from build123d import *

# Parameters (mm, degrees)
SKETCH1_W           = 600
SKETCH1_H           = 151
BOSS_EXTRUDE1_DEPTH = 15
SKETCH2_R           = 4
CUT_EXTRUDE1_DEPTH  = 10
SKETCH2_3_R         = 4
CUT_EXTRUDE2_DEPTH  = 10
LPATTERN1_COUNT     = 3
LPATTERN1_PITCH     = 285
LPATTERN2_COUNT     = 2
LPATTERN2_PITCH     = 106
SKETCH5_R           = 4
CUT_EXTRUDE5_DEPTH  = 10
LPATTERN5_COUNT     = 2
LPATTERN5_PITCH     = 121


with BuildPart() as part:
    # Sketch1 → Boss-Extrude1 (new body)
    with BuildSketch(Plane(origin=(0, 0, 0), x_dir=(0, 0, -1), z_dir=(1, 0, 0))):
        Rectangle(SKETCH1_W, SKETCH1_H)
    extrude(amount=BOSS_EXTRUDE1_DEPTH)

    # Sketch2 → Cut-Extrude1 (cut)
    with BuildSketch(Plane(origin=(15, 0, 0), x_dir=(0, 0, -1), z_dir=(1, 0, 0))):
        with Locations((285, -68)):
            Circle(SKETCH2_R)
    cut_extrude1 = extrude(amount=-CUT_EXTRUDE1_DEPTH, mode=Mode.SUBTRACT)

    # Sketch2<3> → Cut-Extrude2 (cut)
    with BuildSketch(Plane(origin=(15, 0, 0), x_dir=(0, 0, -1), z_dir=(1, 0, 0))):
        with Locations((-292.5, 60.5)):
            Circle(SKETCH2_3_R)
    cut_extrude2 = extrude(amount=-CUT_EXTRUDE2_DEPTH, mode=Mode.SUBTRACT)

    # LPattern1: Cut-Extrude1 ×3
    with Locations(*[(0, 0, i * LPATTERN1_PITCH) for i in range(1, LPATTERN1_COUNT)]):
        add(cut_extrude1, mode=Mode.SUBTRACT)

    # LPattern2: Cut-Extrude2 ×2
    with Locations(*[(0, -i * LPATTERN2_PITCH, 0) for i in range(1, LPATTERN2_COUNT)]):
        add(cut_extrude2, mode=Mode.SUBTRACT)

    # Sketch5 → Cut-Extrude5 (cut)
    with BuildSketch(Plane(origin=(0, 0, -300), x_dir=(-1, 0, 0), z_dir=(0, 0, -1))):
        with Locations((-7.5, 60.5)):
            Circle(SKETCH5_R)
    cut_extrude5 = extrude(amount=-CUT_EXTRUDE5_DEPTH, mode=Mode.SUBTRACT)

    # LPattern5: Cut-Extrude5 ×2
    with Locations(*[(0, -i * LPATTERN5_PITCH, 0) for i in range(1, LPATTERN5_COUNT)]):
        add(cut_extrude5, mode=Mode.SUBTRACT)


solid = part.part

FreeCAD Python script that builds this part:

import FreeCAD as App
import Part
import Sketcher
Q = App.Units.Quantity

doc = App.newDocument("Part")
params = doc.addObject("Spreadsheet::Sheet", "Params")
for row, (alias, value) in enumerate([
    ("sketch1_width", "151 mm"),
    ("sketch1_height", "600 mm"),
    ("pad1_length", "15 mm"),
    ("sketch2_diameter", "8 mm"),
    ("pocket1_length", "10 mm"),
    ("sketch3_diameter", "8 mm"),
    ("pocket2_length", "10 mm"),
    ("linearpattern_pitch", "285 mm"),
    ("linearpattern2_pitch", "106 mm"),
    ("sketch4_diameter", "8 mm"),
    ("pocket3_length", "10 mm"),
    ("linearpattern3_pitch", "121 mm"),
], start=1):
    params.set(f"A{row}", alias)
    params.set(f"B{row}", "=" + value)
    params.setAlias(f"B{row}", alias)

body = doc.addObject("PartDesign::Body", "Body")

sketch1 = doc.addObject("Sketcher::SketchObject", "Sketch")
body.addObject(sketch1)
sketch1.AttachmentSupport = (doc.YZ_Plane, [""])
sketch1.MapMode = "FlatFace"
sketch1.addGeometry(Part.LineSegment(App.Vector(76, 300, 0), App.Vector(-76, 300, 0)), False)
sketch1.addGeometry(Part.LineSegment(App.Vector(-76, 300, 0), App.Vector(-76, -300, 0)), False)
sketch1.addGeometry(Part.LineSegment(App.Vector(-76, -300, 0), App.Vector(76, -300, 0)), False)
sketch1.addGeometry(Part.LineSegment(App.Vector(76, -300, 0), App.Vector(76, 300, 0)), False)
sketch1.addConstraint(Sketcher.Constraint("Coincident", 0, 2, 1, 1))
sketch1.addConstraint(Sketcher.Constraint("Coincident", 1, 2, 2, 1))
sketch1.addConstraint(Sketcher.Constraint("Coincident", 2, 2, 3, 1))
sketch1.addConstraint(Sketcher.Constraint("Coincident", 3, 2, 0, 1))
sketch1.addConstraint(Sketcher.Constraint("Horizontal", 0))
sketch1.addConstraint(Sketcher.Constraint("Vertical", 1))
sketch1.addConstraint(Sketcher.Constraint("Horizontal", 2))
sketch1.addConstraint(Sketcher.Constraint("Vertical", 3))
sketch1.addConstraint(Sketcher.Constraint("Symmetric", 0, 2, 2, 2, -1, 1))
sketch1.addConstraint(Sketcher.Constraint("DistanceX", 0, 2, 0, 1, Q("151 mm")))
sketch1.addConstraint(Sketcher.Constraint("DistanceY", 1, 2, 1, 1, Q("600 mm")))
sketch1.setExpression("Constraints[9]", "Params.sketch1_width")
sketch1.setExpression("Constraints[10]", "Params.sketch1_height")
pad1 = doc.addObject("PartDesign::Pad", "Pad")
body.addObject(pad1)
pad1.Profile = sketch1
pad1.setExpression("Length", "Params.pad1_length")

sketch2 = doc.addObject("Sketcher::SketchObject", "Sketch001")
body.addObject(sketch2)
sketch2.AttachmentSupport = (doc.YZ_Plane, [""])
sketch2.MapMode = "FlatFace"
sketch2.AttachmentOffset = App.Placement(App.Vector(0, 0, 15), App.Rotation())
sketch2.addGeometry(Part.Circle(App.Vector(-68, -285, 0), App.Vector(0, 0, 1), 4), False)
sketch2.addConstraint(Sketcher.Constraint("Diameter", 0, Q("8 mm")))
sketch2.addConstraint(Sketcher.Constraint("DistanceX", 0, 3, -1, 1, Q("68 mm")))
sketch2.addConstraint(Sketcher.Constraint("DistanceY", 0, 3, -1, 1, Q("285 mm")))
sketch2.setExpression("Constraints[0]", "Params.sketch2_diameter")
pocket1 = doc.addObject("PartDesign::Pocket", "Pocket")
body.addObject(pocket1)
pocket1.Profile = sketch2
pocket1.setExpression("Length", "Params.pocket1_length")

sketch3 = doc.addObject("Sketcher::SketchObject", "Sketch002")
body.addObject(sketch3)
sketch3.AttachmentSupport = (doc.YZ_Plane, [""])
sketch3.MapMode = "FlatFace"
sketch3.AttachmentOffset = App.Placement(App.Vector(0, 0, 15), App.Rotation())
sketch3.addGeometry(Part.Circle(App.Vector(60.5, 292.5, 0), App.Vector(0, 0, 1), 4), False)
sketch3.addConstraint(Sketcher.Constraint("Diameter", 0, Q("8 mm")))
sketch3.addConstraint(Sketcher.Constraint("DistanceX", -1, 1, 0, 3, Q("60.5 mm")))
sketch3.addConstraint(Sketcher.Constraint("DistanceY", -1, 1, 0, 3, Q("292.5 mm")))
sketch3.setExpression("Constraints[0]", "Params.sketch3_diameter")
pocket2 = doc.addObject("PartDesign::Pocket", "Pocket001")
body.addObject(pocket2)
pocket2.Profile = sketch3
pocket2.setExpression("Length", "Params.pocket2_length")
doc.recompute()

linearpattern = doc.addObject("PartDesign::LinearPattern", "LinearPattern")
body.addObject(linearpattern)
linearpattern.Originals = [pocket1]
linearpattern.Direction = (doc.Z_Axis, [""])
linearpattern.Mode = "offset"
linearpattern.setExpression("Offset", "Params.linearpattern_pitch")
linearpattern.Occurrences = 3
body.Tip = linearpattern
doc.recompute()

linearpattern2 = doc.addObject("PartDesign::LinearPattern", "LinearPattern001")
body.addObject(linearpattern2)
linearpattern2.Originals = [pocket2]
linearpattern2.Direction = (doc.Y_Axis, [""])
linearpattern2.Mode = "offset"
linearpattern2.setExpression("Offset", "Params.linearpattern2_pitch")
linearpattern2.Occurrences = 2
linearpattern2.Reversed = True
body.Tip = linearpattern2

sketch4 = doc.addObject("Sketcher::SketchObject", "Sketch003")
body.addObject(sketch4)
sketch4.AttachmentSupport = (doc.XY_Plane, [""])
sketch4.MapMode = "FlatFace"
sketch4.AttachmentOffset = App.Placement(App.Vector(0, 0, -300), App.Rotation())
sketch4.addGeometry(Part.Circle(App.Vector(7.5, 60.5, 0), App.Vector(0, 0, 1), 4), False)
sketch4.addConstraint(Sketcher.Constraint("Diameter", 0, Q("8 mm")))
sketch4.addConstraint(Sketcher.Constraint("DistanceX", -1, 1, 0, 3, Q("7.5 mm")))
sketch4.addConstraint(Sketcher.Constraint("DistanceY", -1, 1, 0, 3, Q("60.5 mm")))
sketch4.setExpression("Constraints[0]", "Params.sketch4_diameter")
pocket3 = doc.addObject("PartDesign::Pocket", "Pocket002")
body.addObject(pocket3)
pocket3.Profile = sketch4
pocket3.setExpression("Length", "Params.pocket3_length")
pocket3.Reversed = True
doc.recompute()

linearpattern3 = doc.addObject("PartDesign::LinearPattern", "LinearPattern002")
body.addObject(linearpattern3)
linearpattern3.Originals = [pocket3]
linearpattern3.Direction = (doc.Y_Axis, [""])
linearpattern3.Mode = "offset"
linearpattern3.setExpression("Offset", "Params.linearpattern3_pitch")
linearpattern3.Occurrences = 2
linearpattern3.Reversed = True
body.Tip = linearpattern3

doc.recompute()
